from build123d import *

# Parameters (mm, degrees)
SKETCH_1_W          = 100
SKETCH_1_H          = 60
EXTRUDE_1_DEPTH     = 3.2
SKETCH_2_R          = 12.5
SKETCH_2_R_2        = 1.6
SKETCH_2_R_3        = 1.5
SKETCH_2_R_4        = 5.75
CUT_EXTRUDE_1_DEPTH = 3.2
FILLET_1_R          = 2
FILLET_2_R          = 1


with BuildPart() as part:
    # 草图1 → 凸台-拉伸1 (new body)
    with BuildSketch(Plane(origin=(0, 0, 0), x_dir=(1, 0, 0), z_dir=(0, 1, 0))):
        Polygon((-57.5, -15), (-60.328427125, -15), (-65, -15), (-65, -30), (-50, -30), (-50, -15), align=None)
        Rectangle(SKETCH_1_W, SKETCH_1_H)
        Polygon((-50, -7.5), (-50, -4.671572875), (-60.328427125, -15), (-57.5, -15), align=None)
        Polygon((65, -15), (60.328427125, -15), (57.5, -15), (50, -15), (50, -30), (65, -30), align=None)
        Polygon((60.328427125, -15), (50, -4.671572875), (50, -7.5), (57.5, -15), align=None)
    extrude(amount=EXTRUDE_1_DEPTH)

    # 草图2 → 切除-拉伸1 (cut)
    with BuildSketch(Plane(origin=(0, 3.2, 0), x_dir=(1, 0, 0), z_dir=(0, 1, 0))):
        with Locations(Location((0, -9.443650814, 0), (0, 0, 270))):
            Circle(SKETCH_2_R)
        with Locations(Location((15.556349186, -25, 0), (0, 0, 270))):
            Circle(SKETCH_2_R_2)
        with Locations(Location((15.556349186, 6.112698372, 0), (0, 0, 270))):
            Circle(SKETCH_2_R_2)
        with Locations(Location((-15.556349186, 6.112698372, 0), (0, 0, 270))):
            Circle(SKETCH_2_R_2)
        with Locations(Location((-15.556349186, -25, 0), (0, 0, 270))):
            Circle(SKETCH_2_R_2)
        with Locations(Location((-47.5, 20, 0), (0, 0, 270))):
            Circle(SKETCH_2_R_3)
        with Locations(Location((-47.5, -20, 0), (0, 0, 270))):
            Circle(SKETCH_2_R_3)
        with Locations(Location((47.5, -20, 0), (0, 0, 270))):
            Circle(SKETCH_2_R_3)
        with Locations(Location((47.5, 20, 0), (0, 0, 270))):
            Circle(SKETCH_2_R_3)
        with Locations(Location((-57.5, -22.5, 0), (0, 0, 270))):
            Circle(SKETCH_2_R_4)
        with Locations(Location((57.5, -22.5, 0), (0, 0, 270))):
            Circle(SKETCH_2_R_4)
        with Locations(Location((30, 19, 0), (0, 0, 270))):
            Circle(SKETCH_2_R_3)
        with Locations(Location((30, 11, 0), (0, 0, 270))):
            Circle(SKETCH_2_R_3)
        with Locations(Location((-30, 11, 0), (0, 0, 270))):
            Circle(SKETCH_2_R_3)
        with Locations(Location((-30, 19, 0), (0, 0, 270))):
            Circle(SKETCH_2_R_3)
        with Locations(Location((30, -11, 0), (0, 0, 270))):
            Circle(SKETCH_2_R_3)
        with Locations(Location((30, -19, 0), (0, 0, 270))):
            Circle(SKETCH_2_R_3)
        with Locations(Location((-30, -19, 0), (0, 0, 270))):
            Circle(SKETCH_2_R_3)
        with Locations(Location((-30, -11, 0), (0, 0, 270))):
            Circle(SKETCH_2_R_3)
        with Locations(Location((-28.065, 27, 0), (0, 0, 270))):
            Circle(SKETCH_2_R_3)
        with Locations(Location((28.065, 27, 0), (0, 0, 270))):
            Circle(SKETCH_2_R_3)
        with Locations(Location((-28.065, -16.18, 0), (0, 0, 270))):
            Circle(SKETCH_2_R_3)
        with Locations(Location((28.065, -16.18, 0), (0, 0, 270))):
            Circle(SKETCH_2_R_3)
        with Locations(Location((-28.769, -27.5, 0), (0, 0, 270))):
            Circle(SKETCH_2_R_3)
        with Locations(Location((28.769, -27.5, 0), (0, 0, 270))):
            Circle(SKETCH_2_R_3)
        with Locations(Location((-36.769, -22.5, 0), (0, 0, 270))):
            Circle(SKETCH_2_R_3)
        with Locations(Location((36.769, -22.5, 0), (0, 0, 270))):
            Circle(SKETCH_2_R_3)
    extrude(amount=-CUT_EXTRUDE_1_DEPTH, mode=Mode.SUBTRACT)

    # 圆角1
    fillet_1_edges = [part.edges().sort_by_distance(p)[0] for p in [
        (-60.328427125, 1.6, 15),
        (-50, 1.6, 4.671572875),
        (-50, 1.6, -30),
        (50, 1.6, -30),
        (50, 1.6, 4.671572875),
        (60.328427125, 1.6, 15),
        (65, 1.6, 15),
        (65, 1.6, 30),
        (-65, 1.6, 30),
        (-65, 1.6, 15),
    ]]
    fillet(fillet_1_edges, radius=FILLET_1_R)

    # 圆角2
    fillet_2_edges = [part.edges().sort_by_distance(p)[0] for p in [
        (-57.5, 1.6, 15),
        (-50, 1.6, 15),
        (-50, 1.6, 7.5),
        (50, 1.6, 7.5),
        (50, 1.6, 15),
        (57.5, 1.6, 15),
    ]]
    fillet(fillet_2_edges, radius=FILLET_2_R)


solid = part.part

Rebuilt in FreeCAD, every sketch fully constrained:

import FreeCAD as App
import Part
import Sketcher
Q = App.Units.Quantity


def edges_at(feature, points):
    """Names of the edges that pass closest to the given points."""
    edges = feature.Shape.Edges
    near = lambda p: min(range(len(edges)), key=lambda i: edges[i].distToShape(Part.Vertex(*p))[0])
    return sorted({f"Edge{near(p) + 1}" for p in points})


def add_polygon(sketch, points):
    """Adds a closed chain of lines whose ends are joined by coincident constraints."""
    first, n = sketch.GeometryCount, len(points)
    for a, b in zip(points, points[1:] + points[:1]):
        sketch.addGeometry(Part.LineSegment(App.Vector(*a, 0), App.Vector(*b, 0)), False)
    for i in range(n):
        sketch.addConstraint(Sketcher.Constraint("Coincident", first + i, 2, first + (i + 1) % n, 1))

doc = App.newDocument("Part")
body = doc.addObject("PartDesign::Body", "Body")

# Sketch on XZ plane
sketch1 = doc.addObject("Sketcher::SketchObject", "Sketch")
body.addObject(sketch1)
sketch1.AttachmentSupport = (doc.XZ_Plane, [""])
sketch1.MapMode = "FlatFace"
add_polygon(sketch1, [(-65, 15), (-65, 30), (65, 30), (65, 15), (60.328427, 15), (50, 4.671573), (50, -30), (-50, -30), (-50, 4.671573), (-60.328427, 15)])  # lines 0-9
add_polygon(sketch1, [(57.5, 15), (50, 15), (50, 7.5)])  # lines 10-12
add_polygon(sketch1, [(-50, 7.5), (-50, 15), (-57.5, 15)])  # lines 13-15
sketch1.addConstraint([
    Sketcher.Constraint("Vertical", 0),
    Sketcher.Constraint("Horizontal", 1),
    Sketcher.Constraint("Vertical", 2),
    Sketcher.Constraint("Horizontal", 3),
    Sketcher.Constraint("Vertical", 5),
    Sketcher.Constraint("Horizontal", 6),
    Sketcher.Constraint("Vertical", 7),
    Sketcher.Constraint("Horizontal", 9),
    Sketcher.Constraint("Horizontal", 10),
    Sketcher.Constraint("Vertical", 11),
    Sketcher.Constraint("Vertical", 13),
    Sketcher.Constraint("Horizontal", 14),
    Sketcher.Constraint("Symmetric", 4, 2, 7, 2, -2),
    Sketcher.Constraint("Symmetric", 3, 2, 8, 2, -2),
    Sketcher.Constraint("Symmetric", 10, 2, 13, 2, -2),
    Sketcher.Constraint("Perpendicular", 4, 8),
    Sketcher.Constraint("Perpendicular", 8, 12),
    Sketcher.Constraint("Perpendicular", 12, 15),
    Sketcher.Constraint("Horizontal", 9, 2, 10, 2),
    Sketcher.Constraint("Horizontal", 11, 2, 15, 2),
    Sketcher.Constraint("Vertical", 5, 2, 10, 2),
    Sketcher.Constraint("Equal", 3, 9),
    Sketcher.Constraint("DistanceX", 1, 1, 1, 2, Q("130 mm")),
    Sketcher.Constraint("DistanceX", 6, 2, 6, 1, Q("100 mm")),
    Sketcher.Constraint("DistanceY", 0, 1, 0, 2, Q("15 mm")),
    Sketcher.Constraint("DistanceX", 10, 2, 10, 1, Q("7.5 mm")),
    Sketcher.Constraint("DistanceY", -1, 1, 0, 2, Q("30 mm")),
    Sketcher.Constraint("DistanceY", 5, 2, -1, 1, Q("30 mm")),
    Sketcher.Constraint("Distance", 4, Q("14.606602 mm")),
])
pad1 = doc.addObject("PartDesign::Pad", "Pad")
body.addObject(pad1)
pad1.Profile = sketch1
pad1.Length = 3.2
pad1.Reversed = True

# Sketch on XZ plane
sketch2 = doc.addObject("Sketcher::SketchObject", "Sketch001")
body.addObject(sketch2)
sketch2.AttachmentSupport = (doc.XZ_Plane, [""])
sketch2.MapMode = "FlatFace"
sketch2.AttachmentOffset = App.Placement(App.Vector(0, 0, -3.2), App.Rotation())
sketch2.addGeometry([
    Part.Circle(App.Vector(0, 9.443651, 0), App.Vector(0, 0, 1), 12.5),  # 0
    Part.Circle(App.Vector(15.556349, 25, 0), App.Vector(0, 0, 1), 1.6),  # 1
    Part.Circle(App.Vector(15.556349, -6.112698, 0), App.Vector(0, 0, 1), 1.6),  # 2
    Part.Circle(App.Vector(-15.556349, -6.112698, 0), App.Vector(0, 0, 1), 1.6),  # 3
    Part.Circle(App.Vector(-15.556349, 25, 0), App.Vector(0, 0, 1), 1.6),  # 4
    Part.Circle(App.Vector(-47.5, -20, 0), App.Vector(0, 0, 1), 1.5),  # 5
    Part.Circle(App.Vector(-47.5, 20, 0), App.Vector(0, 0, 1), 1.5),  # 6
    Part.Circle(App.Vector(47.5, 20, 0), App.Vector(0, 0, 1), 1.5),  # 7
    Part.Circle(App.Vector(47.5, -20, 0), App.Vector(0, 0, 1), 1.5),  # 8
    Part.Circle(App.Vector(-57.5, 22.5, 0), App.Vector(0, 0, 1), 5.75),  # 9
    Part.Circle(App.Vector(57.5, 22.5, 0), App.Vector(0, 0, 1), 5.75),  # 10
    Part.Circle(App.Vector(30, -19, 0), App.Vector(0, 0, 1), 1.5),  # 11
    Part.Circle(App.Vector(30, -11, 0), App.Vector(0, 0, 1), 1.5),  # 12
    Part.Circle(App.Vector(-30, -11, 0), App.Vector(0, 0, 1), 1.5),  # 13
    Part.Circle(App.Vector(-30, -19, 0), App.Vector(0, 0, 1), 1.5),  # 14
    Part.Circle(App.Vector(30, 11, 0), App.Vector(0, 0, 1), 1.5),  # 15
    Part.Circle(App.Vector(30, 19, 0), App.Vector(0, 0, 1), 1.5),  # 16
    Part.Circle(App.Vector(-30, 19, 0), App.Vector(0, 0, 1), 1.5),  # 17
    Part.Circle(App.Vector(-30, 11, 0), App.Vector(0, 0, 1), 1.5),  # 18
    Part.Circle(App.Vector(-28.065, -27, 0), App.Vector(0, 0, 1), 1.5),  # 19
    Part.Circle(App.Vector(28.065, -27, 0), App.Vector(0, 0, 1), 1.5),  # 20
    Part.Circle(App.Vector(-28.065, 16.18, 0), App.Vector(0, 0, 1), 1.5),  # 21
    Part.Circle(App.Vector(28.065, 16.18, 0), App.Vector(0, 0, 1), 1.5),  # 22
    Part.Circle(App.Vector(-28.769, 27.5, 0), App.Vector(0, 0, 1), 1.5),  # 23
    Part.Circle(App.Vector(28.769, 27.5, 0), App.Vector(0, 0, 1), 1.5),  # 24
    Part.Circle(App.Vector(-36.769, 22.5, 0), App.Vector(0, 0, 1), 1.5),  # 25
    Part.Circle(App.Vector(36.769, 22.5, 0), App.Vector(0, 0, 1), 1.5),  # 26
], False)
sketch2.addConstraint([
    Sketcher.Constraint("Equal", 1, 2),
    Sketcher.Constraint("Equal", 2, 3),
    Sketcher.Constraint("Equal", 3, 4),
    Sketcher.Constraint("Equal", 5, 6),
    Sketcher.Constraint("Equal", 6, 7),
    Sketcher.Constraint("Equal", 7, 8),
    Sketcher.Constraint("Equal", 9, 10),
    Sketcher.Constraint("Equal", 8, 11),
    Sketcher.Constraint("Equal", 11, 12),
    Sketcher.Constraint("Equal", 12, 13),
    Sketcher.Constraint("Equal", 13, 14),
    Sketcher.Constraint("Equal", 14, 15),
    Sketcher.Constraint("Equal", 15, 16),
    Sketcher.Constraint("Equal", 16, 17),
    Sketcher.Constraint("Equal", 17, 18),
    Sketcher.Constraint("Equal", 18, 19),
    Sketcher.Constraint("Equal", 19, 20),
    Sketcher.Constraint("Equal", 20, 21),
    Sketcher.Constraint("Equal", 21, 22),
    Sketcher.Constraint("Equal", 22, 23),
    Sketcher.Constraint("Equal", 23, 24),
    Sketcher.Constraint("Equal", 24, 25),
    Sketcher.Constraint("Equal", 25, 26),
    Sketcher.Constraint("Symmetric", 5, 3, 7, 3, -1, 1),
    Sketcher.Constraint("Symmetric", 6, 3, 8, 3, -1, 1),
    Sketcher.Constraint("Symmetric", 13, 3, 15, 3, -1, 1),
    Sketcher.Constraint("Symmetric", 14, 3, 16, 3, -1, 1),
    Sketcher.Constraint("Symmetric", 11, 3, 17, 3, -1, 1),
    Sketcher.Constraint("Symmetric", 12, 3, 18, 3, -1, 1),
    Sketcher.Constraint("Symmetric", 2, 3, 3, 3, -2),
    Sketcher.Constraint("Symmetric", 1, 3, 4, 3, -2),
    Sketcher.Constraint("Symmetric", 6, 3, 7, 3, -2),
    Sketcher.Constraint("Symmetric", 9, 3, 10, 3, -2),
    Sketcher.Constraint("Symmetric", 12, 3, 13, 3, -2),
    Sketcher.Constraint("Symmetric", 11, 3, 14, 3, -2),
    Sketcher.Constraint("Symmetric", 19, 3, 20, 3, -2),
    Sketcher.Constraint("Symmetric", 21, 3, 22, 3, -2),
    Sketcher.Constraint("Symmetric", 23, 3, 24, 3, -2),
    Sketcher.Constraint("Symmetric", 25, 3, 26, 3, -2),
    Sketcher.Constraint("PointOnObject", 0, 3, -2),
    Sketcher.Constraint("Horizontal", 10, 3, 25, 3),
    Sketcher.Constraint("Vertical", 1, 3, 2, 3),
    Sketcher.Constraint("Vertical", 11, 3, 12, 3),
    Sketcher.Constraint("Vertical", 19, 3, 21, 3),
    Sketcher.Constraint("Diameter", 0, Q("25 mm")),
    Sketcher.Constraint("Diameter", 5, Q("3 mm")),
    Sketcher.Constraint("Diameter", 1, Q("3.2 mm")),
    Sketcher.Constraint("Diameter", 9, Q("11.5 mm")),
    Sketcher.Constraint("DistanceY", -1, 1, 1, 3, Q("25 mm")),
    Sketcher.Constraint("DistanceY", 5, 3, -1, 1, Q("20 mm")),
    Sketcher.Constraint("DistanceX", -1, 1, 11, 3, Q("30 mm")),
    Sketcher.Constraint("DistanceY", 11, 3, -1, 1, Q("19 mm")),
    Sketcher.Constraint("DistanceY", 12, 3, -1, 1, Q("11 mm")),
    Sketcher.Constraint("DistanceY", 19, 3, -1, 1, Q("27 mm")),
    Sketcher.Constraint("DistanceX", 9, 3, 6, 3, Q("10 mm")),
    Sketcher.Constraint("DistanceX", 25, 3, 23, 3, Q("8 mm")),
    Sketcher.Constraint("DistanceY", 25, 3, 23, 3, Q("5 mm")),
    Sketcher.Constraint("DistanceX", 5, 3, -1, 1, Q("47.5 mm")),
    Sketcher.Constraint("DistanceY", -1, 1, 9, 3, Q("22.5 mm")),
    Sketcher.Constraint("DistanceY", -1, 1, 21, 3, Q("16.18 mm")),
    Sketcher.Constraint("DistanceX", 19, 3, -1, 1, Q("28.065 mm")),
    Sketcher.Constraint("DistanceX", 23, 3, -1, 1, Q("28.769 mm")),
    Sketcher.Constraint("DistanceY", 2, 3, -1, 1, Q("6.112698 mm")),
    Sketcher.Constraint("DistanceX", 3, 3, 2, 3, Q("31.112698 mm")),
    Sketcher.Constraint("DistanceY", -1, 1, 0, 3, Q("9.443651 mm")),
])
pocket1 = doc.addObject("PartDesign::Pocket", "Pocket")
body.addObject(pocket1)
pocket1.Profile = sketch2
pocket1.Length = 3.2
pocket1.Reversed = True
doc.recompute()

fillet = doc.addObject("PartDesign::Fillet", "Fillet")
body.addObject(fillet)
fillet.Base = (pocket1, edges_at(pocket1, [
    (-60.328, 1.6, 15),
    (-50, 1.6, 4.672),
    (-50, 1.6, -30),
    (50, 1.6, -30),
    (50, 1.6, 4.672),
    (60.328, 1.6, 15),
    (65, 1.6, 15),
    (65, 1.6, 30),
    (-65, 1.6, 30),
    (-65, 1.6, 15),
]))
fillet.Radius = 2
doc.recompute()

fillet2 = doc.addObject("PartDesign::Fillet", "Fillet001")
body.addObject(fillet2)
fillet2.Base = (fillet, edges_at(fillet, [
    (-57.5, 1.6, 15),
    (-50, 1.6, 15),
    (-50, 1.6, 7.5),
    (50, 1.6, 7.5),
    (50, 1.6, 15),
    (57.5, 1.6, 15),
]))
fillet2.Radius = 1

doc.recompute()
